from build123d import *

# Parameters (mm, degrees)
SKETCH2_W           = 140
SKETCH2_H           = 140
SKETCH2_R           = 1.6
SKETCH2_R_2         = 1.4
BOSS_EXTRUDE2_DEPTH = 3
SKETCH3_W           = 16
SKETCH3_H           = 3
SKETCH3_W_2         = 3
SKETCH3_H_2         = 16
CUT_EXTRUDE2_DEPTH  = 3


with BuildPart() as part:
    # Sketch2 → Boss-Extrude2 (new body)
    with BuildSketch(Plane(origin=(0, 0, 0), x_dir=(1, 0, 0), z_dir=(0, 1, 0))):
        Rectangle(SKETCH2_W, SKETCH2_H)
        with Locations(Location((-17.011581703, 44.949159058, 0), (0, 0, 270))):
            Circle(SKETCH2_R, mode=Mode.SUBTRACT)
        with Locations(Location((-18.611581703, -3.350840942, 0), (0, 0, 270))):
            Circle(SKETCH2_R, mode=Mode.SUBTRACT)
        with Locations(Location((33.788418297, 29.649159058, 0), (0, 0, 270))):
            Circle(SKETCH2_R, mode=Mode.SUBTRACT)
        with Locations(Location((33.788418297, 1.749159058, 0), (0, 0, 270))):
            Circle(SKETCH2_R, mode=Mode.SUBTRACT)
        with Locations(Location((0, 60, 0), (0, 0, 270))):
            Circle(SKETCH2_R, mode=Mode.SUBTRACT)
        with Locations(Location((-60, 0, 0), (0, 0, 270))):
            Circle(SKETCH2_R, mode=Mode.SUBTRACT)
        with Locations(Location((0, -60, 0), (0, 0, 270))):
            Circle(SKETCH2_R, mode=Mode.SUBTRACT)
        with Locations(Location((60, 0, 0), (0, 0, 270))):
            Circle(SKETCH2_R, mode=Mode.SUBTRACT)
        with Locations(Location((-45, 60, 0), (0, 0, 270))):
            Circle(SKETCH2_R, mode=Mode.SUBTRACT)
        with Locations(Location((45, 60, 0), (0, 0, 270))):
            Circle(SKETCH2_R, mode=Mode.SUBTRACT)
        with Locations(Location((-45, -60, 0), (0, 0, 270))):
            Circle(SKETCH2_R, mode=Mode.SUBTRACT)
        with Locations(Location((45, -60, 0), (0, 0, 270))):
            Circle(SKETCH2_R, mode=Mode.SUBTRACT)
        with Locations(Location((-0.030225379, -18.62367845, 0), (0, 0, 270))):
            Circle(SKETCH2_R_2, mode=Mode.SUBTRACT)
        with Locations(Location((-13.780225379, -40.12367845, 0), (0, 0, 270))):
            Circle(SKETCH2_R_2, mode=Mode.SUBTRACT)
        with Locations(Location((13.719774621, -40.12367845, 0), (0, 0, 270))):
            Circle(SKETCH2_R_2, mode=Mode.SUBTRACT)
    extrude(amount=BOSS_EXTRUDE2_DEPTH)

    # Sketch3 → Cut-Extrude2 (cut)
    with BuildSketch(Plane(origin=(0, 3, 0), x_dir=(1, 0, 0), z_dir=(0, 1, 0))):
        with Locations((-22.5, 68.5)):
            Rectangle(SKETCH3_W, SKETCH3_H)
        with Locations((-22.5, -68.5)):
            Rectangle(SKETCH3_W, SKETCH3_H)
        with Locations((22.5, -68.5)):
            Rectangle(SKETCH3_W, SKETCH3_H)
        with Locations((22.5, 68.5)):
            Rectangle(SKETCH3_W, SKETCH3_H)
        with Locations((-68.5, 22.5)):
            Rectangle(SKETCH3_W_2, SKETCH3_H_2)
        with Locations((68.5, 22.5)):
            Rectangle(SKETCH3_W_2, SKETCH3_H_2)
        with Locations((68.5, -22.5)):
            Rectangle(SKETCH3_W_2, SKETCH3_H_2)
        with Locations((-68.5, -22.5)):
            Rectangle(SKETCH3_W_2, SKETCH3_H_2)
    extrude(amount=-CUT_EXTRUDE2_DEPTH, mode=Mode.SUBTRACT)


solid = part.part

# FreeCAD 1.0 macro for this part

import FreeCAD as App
import Part
import Sketcher


def add_polygon(sketch, points):
    """Adds a closed chain of lines whose ends are joined by coincident constraints."""
    first, n = sketch.GeometryCount, len(points)
    for a, b in zip(points, points[1:] + points[:1]):
        sketch.addGeometry(Part.LineSegment(App.Vector(*a, 0), App.Vector(*b, 0)), False)
    for i in range(n):
        sketch.addConstraint(Sketcher.Constraint("Coincident", first + i, 2, first + (i + 1) % n, 1))

doc = App.newDocument("Part")
params = doc.addObject("Spreadsheet::Sheet", "Params")
for row, (alias, value) in enumerate([
    ("sketch1_diameter", "3.2 mm"),
    ("sketch1_diameter2", "2.8 mm"),
    ("sketch1_width", "140 mm"),
    ("pad1_length", "3 mm"),
    ("sketch2_width", "16 mm"),
    ("sketch2_width2", "3 mm"),
    ("pocket1_length", "3 mm"),
], start=1):
    params.set(f"A{row}", alias)
    params.set(f"B{row}", "=" + value)
    params.setAlias(f"B{row}", alias)

body = doc.addObject("PartDesign::Body", "Body")

sketch1 = doc.addObject("Sketcher::SketchObject", "Sketch")
body.addObject(sketch1)
sketch1.AttachmentSupport = (doc.XZ_Plane, [""])
sketch1.MapMode = "FlatFace"
add_polygon(sketch1, [(-70, -70), (-70, 70), (70, 70), (70, -70)])
sketch1.addGeometry(Part.Circle(App.Vector(-45, 60, 0), App.Vector(0, 0, 1), 1.6), False)
sketch1.addGeometry(Part.Circle(App.Vector(0, 60, 0), App.Vector(0, 0, 1), 1.6), False)
sketch1.addGeometry(Part.Circle(App.Vector(-13.8, 40.1, 0), App.Vector(0, 0, 1), 1.4), False)
sketch1.addGeometry(Part.Circle(App.Vector(-60, 0, 0), App.Vector(0, 0, 1), 1.6), False)
sketch1.addGeometry(Part.Circle(App.Vector(0, 18.6, 0), App.Vector(0, 0, 1), 1.4), False)
sketch1.addGeometry(Part.Circle(App.Vector(-18.6, 3.4, 0), App.Vector(0, 0, 1), 1.6), False)
sketch1.addGeometry(Part.Circle(App.Vector(13.7, 40.1, 0), App.Vector(0, 0, 1), 1.4), False)
sketch1.addGeometry(Part.Circle(App.Vector(45, 60, 0), App.Vector(0, 0, 1), 1.6), False)
sketch1.addGeometry(Part.Circle(App.Vector(60, 0, 0), App.Vector(0, 0, 1), 1.6), False)
sketch1.addGeometry(Part.Circle(App.Vector(-45, -60, 0), App.Vector(0, 0, 1), 1.6), False)
sketch1.addGeometry(Part.Circle(App.Vector(-17, -44.9, 0), App.Vector(0, 0, 1), 1.6), False)
sketch1.addGeometry(Part.Circle(App.Vector(0, -60, 0), App.Vector(0, 0, 1), 1.6), False)
sketch1.addGeometry(Part.Circle(App.Vector(33.8, -1.7, 0), App.Vector(0, 0, 1), 1.6), False)
sketch1.addGeometry(Part.Circle(App.Vector(33.8, -29.6, 0), App.Vector(0, 0, 1), 1.6), False)
sketch1.addGeometry(Part.Circle(App.Vector(45, -60, 0), App.Vector(0, 0, 1), 1.6), False)
sketch1.addConstraint([
    Sketcher.Constraint("Vertical", 0),
    Sketcher.Constraint("Horizontal", 1),
    Sketcher.Constraint("Vertical", 2),
    Sketcher.Constraint("Horizontal", 3),
    Sketcher.Constraint("Equal", 4, 5),
    Sketcher.Constraint("Equal", 5, 7),
    Sketcher.Constraint("Equal", 6, 8),
    Sketcher.Constraint("Equal", 7, 9),
    Sketcher.Constraint("Equal", 8, 10),
    Sketcher.Constraint("Equal", 9, 11),
    Sketcher.Constraint("Equal", 11, 12),
    Sketcher.Constraint("Equal", 12, 13),
    Sketcher.Constraint("Equal", 13, 14),
    Sketcher.Constraint("Equal", 14, 15),
    Sketcher.Constraint("Equal", 15, 16),
    Sketcher.Constraint("Equal", 16, 17),
    Sketcher.Constraint("Equal", 17, 18),
    Sketcher.Constraint("Symmetric", 7, 3, 12, 3, -1, 1),
    Sketcher.Constraint("Symmetric", 11, 3, 13, 3, -1, 1),
    Sketcher.Constraint("Symmetric", 5, 3, 15, 3, -1, 1),
    Sketcher.Constraint("Symmetric", 4, 3, 18, 3, -1, 1),
    Sketcher.Constraint("Symmetric", 0, 2, 2, 2, -1, 1),
    Sketcher.Constraint("Symmetric", 4, 3, 11, 3, -2),
    Sketcher.Constraint("PointOnObject", 5, 3, -2),
    Sketcher.Constraint("PointOnObject", 7, 3, -1),
    Sketcher.Constraint("Horizontal", 4, 3, 5, 3),
    Sketcher.Constraint("Horizontal", 6, 3, 10, 3),
    Sketcher.Constraint("Vertical", 16, 3, 17, 3),
    Sketcher.Constraint("Equal", 3, 0),
    Sketcher.Constraint("Diameter", 4, 3.2),
    Sketcher.Constraint("Diameter", 6, 2.8),
    Sketcher.Constraint("DistanceX", 1, 1, 1, 2, 140.0),
    Sketcher.Constraint("DistanceX", 4, 3, -1, 1, 45.0),
    Sketcher.Constraint("DistanceY", -1, 1, 4, 3, 60.0),
    Sketcher.Constraint("DistanceX", 7, 3, -1, 1, 60.0),
    Sketcher.Constraint("DistanceY", 8, 3, 6, 3, 21.5),
    Sketcher.Constraint("DistanceX", 6, 3, 10, 3, 27.5),
    Sketcher.Constraint("DistanceX", 9, 3, 14, 3, 1.6),
    Sketcher.Constraint("DistanceY", 14, 3, 9, 3, 48.3),
    Sketcher.Constraint("DistanceX", 9, 3, 16, 3, 52.4),
    Sketcher.Constraint("DistanceY", 16, 3, 9, 3, 5.1),
    Sketcher.Constraint("DistanceY", 17, 3, 16, 3, 27.9),
    Sketcher.Constraint("DistanceX", 6, 3, 8, 3, 13.75),
    Sketcher.Constraint("DistanceY", -1, 1, 6, 3, 40.123678),
    Sketcher.Constraint("DistanceX", 9, 3, -1, 1, 18.611582),
    Sketcher.Constraint("DistanceY", -1, 1, 9, 3, 3.350841),
    Sketcher.Constraint("DistanceX", 6, 3, -1, 1, 13.780225),
])
sketch1.setExpression("Constraints[33]", "Params.sketch1_diameter")
sketch1.setExpression("Constraints[34]", "Params.sketch1_diameter2")
sketch1.setExpression("Constraints[35]", "Params.sketch1_width")
pad1 = doc.addObject("PartDesign::Pad", "Pad")
body.addObject(pad1)
pad1.Profile = sketch1
pad1.setExpression("Length", "Params.pad1_length")
pad1.Reversed = True

sketch2 = doc.addObject("Sketcher::SketchObject", "Sketch001")
body.addObject(sketch2)
sketch2.AttachmentSupport = (doc.XZ_Plane, [""])
sketch2.MapMode = "FlatFace"
sketch2.AttachmentOffset = App.Placement(App.Vector(0, 0, -3), App.Rotation())
add_polygon(sketch2, [(-30.5, -70), (-30.5, -67), (-14.5, -67), (-14.5, -70)])
add_polygon(sketch2, [(-30.5, 67), (-30.5, 70), (-14.5, 70), (-14.5, 67)])
add_polygon(sketch2, [(14.5, 67), (14.5, 70), (30.5, 70), (30.5, 67)])
add_polygon(sketch2, [(14.5, -70), (14.5, -67), (30.5, -67), (30.5, -70)])
add_polygon(sketch2, [(-70, -30.5), (-70, -14.5), (-67, -14.5), (-67, -30.5)])
add_polygon(sketch2, [(67, -30.5), (67, -14.5), (70, -14.5), (70, -30.5)])
add_polygon(sketch2, [(67, 14.5), (67, 30.5), (70, 30.5), (70, 14.5)])
add_polygon(sketch2, [(-70, 14.5), (-70, 30.5), (-67, 30.5), (-67, 14.5)])
sketch2.addConstraint([
    Sketcher.Constraint("Vertical", 0),
    Sketcher.Constraint("Horizontal", 1),
    Sketcher.Constraint("Vertical", 2),
    Sketcher.Constraint("Horizontal", 3),
    Sketcher.Constraint("Vertical", 4),
    Sketcher.Constraint("Horizontal", 5),
    Sketcher.Constraint("Vertical", 6),
    Sketcher.Constraint("Horizontal", 7),
    Sketcher.Constraint("Vertical", 8),
    Sketcher.Constraint("Horizontal", 9),
    Sketcher.Constraint("Vertical", 10),
    Sketcher.Constraint("Horizontal", 11),
    Sketcher.Constraint("Vertical", 12),
    Sketcher.Constraint("Horizontal", 13),
    Sketcher.Constraint("Vertical", 14),
    Sketcher.Constraint("Horizontal", 15),
    Sketcher.Constraint("Vertical", 16),
    Sketcher.Constraint("Horizontal", 17),
    Sketcher.Constraint("Vertical", 18),
    Sketcher.Constraint("Horizontal", 19),
    Sketcher.Constraint("Vertical", 20),
    Sketcher.Constraint("Horizontal", 21),
    Sketcher.Constraint("Vertical", 22),
    Sketcher.Constraint("Horizontal", 23),
    Sketcher.Constraint("Vertical", 24),
    Sketcher.Constraint("Horizontal", 25),
    Sketcher.Constraint("Vertical", 26),
    Sketcher.Constraint("Horizontal", 27),
    Sketcher.Constraint("Vertical", 28),
    Sketcher.Constraint("Horizontal", 29),
    Sketcher.Constraint("Vertical", 30),
    Sketcher.Constraint("Horizontal", 31),
    Sketcher.Constraint("Symmetric", 2, 2, 8, 2, -1, 1),
    Sketcher.Constraint("Symmetric", 0, 2, 10, 2, -1, 1),
    Sketcher.Constraint("Symmetric", 6, 2, 12, 2, -1, 1),
    Sketcher.Constraint("Symmetric", 4, 2, 14, 2, -1, 1),
    Sketcher.Constraint("Symmetric", 18, 2, 24, 2, -1, 1),
    Sketcher.Constraint("Symmetric", 16, 2, 26, 2, -1, 1),
    Sketcher.Constraint("Symmetric", 22, 2, 28, 2, -1, 1),
    Sketcher.Constraint("Symmetric", 20, 2, 30, 2, -1, 1),
    Sketcher.Constraint("Symmetric", 5, 2, 8, 2, -2),
    Sketcher.Constraint("Symmetric", 7, 2, 10, 2, -2),
    Sketcher.Constraint("Symmetric", 17, 2, 20, 2, -2),
    Sketcher.Constraint("Symmetric", 19, 2, 22, 2, -2),
    Sketcher.Constraint("Equal", 31, 0),
    Sketcher.Constraint("Equal", 15, 16),
    Sketcher.Constraint("DistanceX", 1, 1, 1, 2, 16.0),
    Sketcher.Constraint("DistanceX", 17, 1, 17, 2, 3.0),
    Sketcher.Constraint("DistanceY", 0, 2, -1, 1, 67.0),
    Sketcher.Constraint("DistanceX", 16, 2, -1, 1, 70.0),
    Sketcher.Constraint("DistanceX", 5, 2, 8, 2, 29.0),
    Sketcher.Constraint("DistanceY", 20, 2, 24, 2, 45.0),
])
sketch2.setExpression("Constraints[78]", "Params.sketch2_width")
sketch2.setExpression("Constraints[79]", "Params.sketch2_width2")
pocket1 = doc.addObject("PartDesign::Pocket", "Pocket")
body.addObject(pocket1)
pocket1.Profile = sketch2
pocket1.setExpression("Length", "Params.pocket1_length")
pocket1.Reversed = True

doc.recompute()
